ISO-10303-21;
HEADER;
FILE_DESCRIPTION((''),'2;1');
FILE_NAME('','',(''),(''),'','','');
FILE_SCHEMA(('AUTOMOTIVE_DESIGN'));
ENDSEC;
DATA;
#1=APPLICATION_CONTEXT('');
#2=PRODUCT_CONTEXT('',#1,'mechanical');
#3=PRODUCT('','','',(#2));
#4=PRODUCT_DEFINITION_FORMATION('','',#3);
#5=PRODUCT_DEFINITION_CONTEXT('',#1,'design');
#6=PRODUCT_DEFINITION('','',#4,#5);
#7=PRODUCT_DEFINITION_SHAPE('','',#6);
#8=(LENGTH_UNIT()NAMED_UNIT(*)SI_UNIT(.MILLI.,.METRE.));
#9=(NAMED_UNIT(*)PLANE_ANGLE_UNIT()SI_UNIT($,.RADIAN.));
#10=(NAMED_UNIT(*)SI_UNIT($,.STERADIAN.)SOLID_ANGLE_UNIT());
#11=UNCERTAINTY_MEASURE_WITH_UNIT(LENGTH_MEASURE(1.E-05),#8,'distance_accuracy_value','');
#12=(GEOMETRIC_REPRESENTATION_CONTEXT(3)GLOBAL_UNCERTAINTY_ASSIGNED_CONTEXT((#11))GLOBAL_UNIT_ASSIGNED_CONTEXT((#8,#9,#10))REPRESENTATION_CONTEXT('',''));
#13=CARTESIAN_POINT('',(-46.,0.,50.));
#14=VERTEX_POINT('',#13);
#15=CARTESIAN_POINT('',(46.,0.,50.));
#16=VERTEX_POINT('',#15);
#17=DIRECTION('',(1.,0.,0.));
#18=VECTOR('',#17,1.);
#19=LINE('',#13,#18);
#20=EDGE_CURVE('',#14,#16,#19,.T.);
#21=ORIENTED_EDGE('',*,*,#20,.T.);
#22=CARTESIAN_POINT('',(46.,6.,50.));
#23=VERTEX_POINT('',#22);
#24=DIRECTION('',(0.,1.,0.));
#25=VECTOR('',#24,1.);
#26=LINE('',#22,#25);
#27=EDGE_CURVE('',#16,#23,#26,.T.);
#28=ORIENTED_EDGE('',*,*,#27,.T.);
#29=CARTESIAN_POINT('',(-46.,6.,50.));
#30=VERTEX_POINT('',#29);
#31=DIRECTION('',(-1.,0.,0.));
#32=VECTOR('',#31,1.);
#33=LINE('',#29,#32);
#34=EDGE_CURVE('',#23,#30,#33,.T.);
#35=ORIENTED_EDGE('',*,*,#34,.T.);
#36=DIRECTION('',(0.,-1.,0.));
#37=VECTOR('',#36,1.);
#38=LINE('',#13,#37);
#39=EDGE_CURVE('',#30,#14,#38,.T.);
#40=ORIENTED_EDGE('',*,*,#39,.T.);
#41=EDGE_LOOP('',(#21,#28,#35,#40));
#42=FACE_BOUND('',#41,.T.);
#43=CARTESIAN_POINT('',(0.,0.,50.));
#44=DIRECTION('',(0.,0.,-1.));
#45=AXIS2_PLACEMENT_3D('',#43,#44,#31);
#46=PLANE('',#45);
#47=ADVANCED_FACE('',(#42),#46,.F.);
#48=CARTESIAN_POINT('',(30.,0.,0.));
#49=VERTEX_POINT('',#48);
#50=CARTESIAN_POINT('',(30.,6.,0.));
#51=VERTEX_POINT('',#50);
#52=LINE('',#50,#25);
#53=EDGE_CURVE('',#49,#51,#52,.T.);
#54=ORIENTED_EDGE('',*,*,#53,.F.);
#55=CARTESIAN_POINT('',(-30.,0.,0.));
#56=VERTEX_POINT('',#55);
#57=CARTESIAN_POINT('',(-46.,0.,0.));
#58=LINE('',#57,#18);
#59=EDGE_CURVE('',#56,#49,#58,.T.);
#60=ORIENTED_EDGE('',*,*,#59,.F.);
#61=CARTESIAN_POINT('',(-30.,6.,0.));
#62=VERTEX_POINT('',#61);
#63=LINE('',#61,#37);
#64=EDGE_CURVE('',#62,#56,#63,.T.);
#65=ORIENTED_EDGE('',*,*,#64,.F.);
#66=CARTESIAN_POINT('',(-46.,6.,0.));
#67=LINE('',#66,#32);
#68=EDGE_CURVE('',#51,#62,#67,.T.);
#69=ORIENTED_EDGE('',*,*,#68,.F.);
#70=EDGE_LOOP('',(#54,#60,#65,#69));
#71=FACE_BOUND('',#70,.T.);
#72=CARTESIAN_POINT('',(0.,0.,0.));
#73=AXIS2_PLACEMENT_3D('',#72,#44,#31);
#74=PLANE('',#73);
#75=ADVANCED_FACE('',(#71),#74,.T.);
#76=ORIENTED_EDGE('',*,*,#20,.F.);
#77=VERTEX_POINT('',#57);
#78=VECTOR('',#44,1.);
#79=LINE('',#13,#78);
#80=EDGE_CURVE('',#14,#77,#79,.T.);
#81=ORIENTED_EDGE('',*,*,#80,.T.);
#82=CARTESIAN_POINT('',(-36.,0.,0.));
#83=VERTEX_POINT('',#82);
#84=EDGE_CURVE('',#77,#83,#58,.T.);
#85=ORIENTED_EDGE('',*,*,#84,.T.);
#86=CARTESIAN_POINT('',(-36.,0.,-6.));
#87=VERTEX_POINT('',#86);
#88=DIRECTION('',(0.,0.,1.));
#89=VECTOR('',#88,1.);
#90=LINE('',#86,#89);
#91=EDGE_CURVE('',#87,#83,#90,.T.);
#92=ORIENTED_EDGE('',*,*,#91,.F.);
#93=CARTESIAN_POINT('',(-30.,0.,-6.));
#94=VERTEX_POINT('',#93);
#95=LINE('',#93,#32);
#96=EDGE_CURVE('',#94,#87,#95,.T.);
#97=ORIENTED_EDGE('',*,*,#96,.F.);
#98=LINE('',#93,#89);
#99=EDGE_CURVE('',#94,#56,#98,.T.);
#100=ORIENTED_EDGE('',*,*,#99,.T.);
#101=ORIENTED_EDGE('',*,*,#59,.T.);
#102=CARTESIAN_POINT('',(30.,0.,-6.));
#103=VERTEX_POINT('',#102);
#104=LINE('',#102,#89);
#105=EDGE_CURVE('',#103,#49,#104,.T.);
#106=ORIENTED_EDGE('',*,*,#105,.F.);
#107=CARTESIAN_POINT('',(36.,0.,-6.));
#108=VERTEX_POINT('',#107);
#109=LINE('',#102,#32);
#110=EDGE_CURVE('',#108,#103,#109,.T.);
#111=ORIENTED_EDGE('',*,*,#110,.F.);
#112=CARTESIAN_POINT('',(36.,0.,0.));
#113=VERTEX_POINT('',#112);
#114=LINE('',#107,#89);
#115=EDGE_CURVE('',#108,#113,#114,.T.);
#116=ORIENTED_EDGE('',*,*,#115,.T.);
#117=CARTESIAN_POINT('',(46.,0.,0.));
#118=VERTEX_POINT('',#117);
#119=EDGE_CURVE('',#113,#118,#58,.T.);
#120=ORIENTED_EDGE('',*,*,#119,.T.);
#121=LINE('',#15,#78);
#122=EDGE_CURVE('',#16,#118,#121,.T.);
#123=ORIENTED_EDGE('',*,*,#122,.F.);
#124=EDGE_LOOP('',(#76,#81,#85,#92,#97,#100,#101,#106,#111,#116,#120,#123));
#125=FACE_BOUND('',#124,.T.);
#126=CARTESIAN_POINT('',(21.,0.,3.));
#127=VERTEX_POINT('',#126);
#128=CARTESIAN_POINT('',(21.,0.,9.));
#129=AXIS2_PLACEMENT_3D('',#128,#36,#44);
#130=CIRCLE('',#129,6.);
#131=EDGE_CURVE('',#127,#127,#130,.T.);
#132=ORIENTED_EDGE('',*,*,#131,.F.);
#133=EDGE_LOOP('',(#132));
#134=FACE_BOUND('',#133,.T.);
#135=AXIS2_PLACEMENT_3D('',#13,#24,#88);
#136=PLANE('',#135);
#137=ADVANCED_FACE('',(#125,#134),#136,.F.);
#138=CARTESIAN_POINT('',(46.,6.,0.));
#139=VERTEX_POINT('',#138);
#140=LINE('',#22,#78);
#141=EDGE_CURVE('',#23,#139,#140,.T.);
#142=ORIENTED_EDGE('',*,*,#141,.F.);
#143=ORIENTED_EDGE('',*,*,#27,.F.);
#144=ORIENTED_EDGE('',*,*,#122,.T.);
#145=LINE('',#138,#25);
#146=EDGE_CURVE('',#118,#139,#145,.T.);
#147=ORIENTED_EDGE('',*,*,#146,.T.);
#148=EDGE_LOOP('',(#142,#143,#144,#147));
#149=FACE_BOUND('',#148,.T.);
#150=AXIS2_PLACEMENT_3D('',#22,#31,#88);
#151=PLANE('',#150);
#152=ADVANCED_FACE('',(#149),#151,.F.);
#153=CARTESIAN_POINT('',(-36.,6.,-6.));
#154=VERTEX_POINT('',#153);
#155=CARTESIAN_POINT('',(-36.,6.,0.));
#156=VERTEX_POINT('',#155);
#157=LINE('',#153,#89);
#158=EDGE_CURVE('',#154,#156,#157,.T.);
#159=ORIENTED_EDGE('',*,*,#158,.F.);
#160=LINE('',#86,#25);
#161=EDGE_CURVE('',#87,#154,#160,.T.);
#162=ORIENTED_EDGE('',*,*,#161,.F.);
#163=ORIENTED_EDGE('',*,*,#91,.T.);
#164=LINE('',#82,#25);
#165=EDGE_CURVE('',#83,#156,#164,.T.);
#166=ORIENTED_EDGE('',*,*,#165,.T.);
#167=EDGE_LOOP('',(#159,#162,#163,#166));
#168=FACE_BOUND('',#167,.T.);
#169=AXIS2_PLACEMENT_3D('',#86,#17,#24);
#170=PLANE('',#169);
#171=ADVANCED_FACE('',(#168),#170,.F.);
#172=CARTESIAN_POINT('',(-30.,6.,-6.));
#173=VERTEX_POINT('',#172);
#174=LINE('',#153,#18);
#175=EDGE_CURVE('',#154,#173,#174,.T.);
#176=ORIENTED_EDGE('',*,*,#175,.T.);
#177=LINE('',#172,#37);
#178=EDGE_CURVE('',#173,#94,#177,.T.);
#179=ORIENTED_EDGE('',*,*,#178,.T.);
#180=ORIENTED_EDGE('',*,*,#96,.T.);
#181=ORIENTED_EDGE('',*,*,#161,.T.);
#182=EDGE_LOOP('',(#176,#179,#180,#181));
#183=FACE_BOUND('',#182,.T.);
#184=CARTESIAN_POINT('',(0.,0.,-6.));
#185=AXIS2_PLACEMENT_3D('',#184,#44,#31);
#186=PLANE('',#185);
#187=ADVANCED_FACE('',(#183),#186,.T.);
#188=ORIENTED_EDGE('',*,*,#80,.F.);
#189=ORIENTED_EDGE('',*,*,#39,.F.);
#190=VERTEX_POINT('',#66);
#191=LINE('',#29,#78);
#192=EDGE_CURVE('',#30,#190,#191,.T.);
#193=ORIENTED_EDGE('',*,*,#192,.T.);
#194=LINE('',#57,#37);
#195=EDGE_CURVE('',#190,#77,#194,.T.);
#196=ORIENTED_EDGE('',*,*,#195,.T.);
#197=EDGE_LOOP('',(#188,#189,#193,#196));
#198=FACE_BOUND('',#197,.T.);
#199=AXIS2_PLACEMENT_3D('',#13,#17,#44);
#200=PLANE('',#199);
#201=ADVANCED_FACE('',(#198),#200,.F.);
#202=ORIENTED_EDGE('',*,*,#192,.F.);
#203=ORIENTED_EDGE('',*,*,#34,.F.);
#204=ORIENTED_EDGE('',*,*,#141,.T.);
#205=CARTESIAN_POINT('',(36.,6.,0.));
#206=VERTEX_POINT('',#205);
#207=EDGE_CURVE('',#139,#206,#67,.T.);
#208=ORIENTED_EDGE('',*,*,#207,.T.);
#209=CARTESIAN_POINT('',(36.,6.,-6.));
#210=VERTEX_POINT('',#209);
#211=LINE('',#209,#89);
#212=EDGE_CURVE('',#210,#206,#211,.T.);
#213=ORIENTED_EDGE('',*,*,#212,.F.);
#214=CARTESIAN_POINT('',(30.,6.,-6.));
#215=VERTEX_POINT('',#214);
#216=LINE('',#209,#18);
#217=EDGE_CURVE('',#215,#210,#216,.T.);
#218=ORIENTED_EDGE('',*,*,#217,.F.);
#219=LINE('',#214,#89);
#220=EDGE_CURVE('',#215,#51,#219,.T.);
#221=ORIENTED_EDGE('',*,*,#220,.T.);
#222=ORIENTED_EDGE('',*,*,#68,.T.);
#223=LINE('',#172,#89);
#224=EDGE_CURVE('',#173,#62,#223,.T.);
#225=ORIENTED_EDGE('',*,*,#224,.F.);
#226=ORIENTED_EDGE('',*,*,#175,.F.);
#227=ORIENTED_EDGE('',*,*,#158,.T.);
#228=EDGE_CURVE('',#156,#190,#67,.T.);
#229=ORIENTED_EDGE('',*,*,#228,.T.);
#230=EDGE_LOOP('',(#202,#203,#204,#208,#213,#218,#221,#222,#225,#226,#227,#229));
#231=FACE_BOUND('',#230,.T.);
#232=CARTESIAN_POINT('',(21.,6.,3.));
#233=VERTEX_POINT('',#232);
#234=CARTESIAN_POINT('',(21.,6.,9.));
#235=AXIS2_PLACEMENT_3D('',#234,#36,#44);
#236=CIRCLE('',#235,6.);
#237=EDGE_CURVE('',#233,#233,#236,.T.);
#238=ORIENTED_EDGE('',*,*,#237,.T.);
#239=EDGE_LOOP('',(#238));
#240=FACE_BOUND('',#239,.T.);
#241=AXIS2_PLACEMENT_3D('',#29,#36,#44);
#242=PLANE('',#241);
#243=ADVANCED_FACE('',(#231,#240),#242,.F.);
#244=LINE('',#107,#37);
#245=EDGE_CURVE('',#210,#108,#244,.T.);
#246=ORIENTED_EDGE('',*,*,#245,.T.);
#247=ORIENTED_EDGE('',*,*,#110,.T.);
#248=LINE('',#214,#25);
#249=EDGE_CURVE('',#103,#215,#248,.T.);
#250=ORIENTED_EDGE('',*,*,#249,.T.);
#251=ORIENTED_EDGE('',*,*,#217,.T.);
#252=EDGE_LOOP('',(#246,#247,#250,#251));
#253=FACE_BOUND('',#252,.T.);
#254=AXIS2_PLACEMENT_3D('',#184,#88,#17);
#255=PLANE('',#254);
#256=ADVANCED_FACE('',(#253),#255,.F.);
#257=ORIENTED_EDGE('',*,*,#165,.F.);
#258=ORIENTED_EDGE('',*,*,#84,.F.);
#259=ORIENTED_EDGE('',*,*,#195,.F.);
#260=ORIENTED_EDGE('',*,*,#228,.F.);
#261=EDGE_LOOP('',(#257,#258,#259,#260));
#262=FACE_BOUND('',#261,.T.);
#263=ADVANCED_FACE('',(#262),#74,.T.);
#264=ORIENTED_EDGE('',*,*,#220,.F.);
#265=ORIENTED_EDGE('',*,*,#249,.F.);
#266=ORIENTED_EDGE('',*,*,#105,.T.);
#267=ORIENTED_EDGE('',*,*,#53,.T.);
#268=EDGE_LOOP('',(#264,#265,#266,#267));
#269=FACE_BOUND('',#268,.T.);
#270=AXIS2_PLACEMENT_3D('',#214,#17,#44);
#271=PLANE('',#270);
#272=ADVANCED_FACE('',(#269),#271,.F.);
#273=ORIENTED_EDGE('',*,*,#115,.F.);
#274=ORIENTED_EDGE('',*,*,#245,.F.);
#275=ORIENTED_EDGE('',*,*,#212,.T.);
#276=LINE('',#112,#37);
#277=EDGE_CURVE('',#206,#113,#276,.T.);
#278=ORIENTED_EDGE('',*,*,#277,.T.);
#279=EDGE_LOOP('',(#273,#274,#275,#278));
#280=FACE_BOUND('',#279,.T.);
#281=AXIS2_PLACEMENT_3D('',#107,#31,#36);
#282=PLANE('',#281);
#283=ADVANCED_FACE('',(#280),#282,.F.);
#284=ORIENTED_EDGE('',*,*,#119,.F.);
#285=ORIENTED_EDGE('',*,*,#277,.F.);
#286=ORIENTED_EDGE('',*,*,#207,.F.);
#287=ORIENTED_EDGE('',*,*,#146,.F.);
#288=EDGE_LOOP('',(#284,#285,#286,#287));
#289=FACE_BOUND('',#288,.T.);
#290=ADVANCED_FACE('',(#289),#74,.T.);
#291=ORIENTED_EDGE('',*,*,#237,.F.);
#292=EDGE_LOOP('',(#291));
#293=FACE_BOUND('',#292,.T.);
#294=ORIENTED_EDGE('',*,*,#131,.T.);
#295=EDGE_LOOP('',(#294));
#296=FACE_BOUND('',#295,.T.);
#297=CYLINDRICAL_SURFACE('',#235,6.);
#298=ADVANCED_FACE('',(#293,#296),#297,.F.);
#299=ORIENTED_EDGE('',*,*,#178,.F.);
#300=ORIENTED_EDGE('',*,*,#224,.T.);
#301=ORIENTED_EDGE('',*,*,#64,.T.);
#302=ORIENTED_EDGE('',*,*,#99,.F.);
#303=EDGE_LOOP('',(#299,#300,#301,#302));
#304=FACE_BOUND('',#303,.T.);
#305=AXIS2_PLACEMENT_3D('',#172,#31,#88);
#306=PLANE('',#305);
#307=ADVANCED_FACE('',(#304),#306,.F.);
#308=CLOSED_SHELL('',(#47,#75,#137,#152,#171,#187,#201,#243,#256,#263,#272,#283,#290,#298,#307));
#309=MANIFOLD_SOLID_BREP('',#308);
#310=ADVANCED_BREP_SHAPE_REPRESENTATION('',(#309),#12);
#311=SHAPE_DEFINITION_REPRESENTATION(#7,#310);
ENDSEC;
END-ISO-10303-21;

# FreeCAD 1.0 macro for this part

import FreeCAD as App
import Part
import Sketcher

V = App.Vector


def add_polygon(sketch, points):
    """Adds a closed chain of lines whose ends are joined by coincident constraints."""
    first, n = sketch.GeometryCount, len(points)
    for a, b in zip(points, points[1:] + points[:1]):
        sketch.addGeometry(Part.LineSegment(App.Vector(*a, 0), App.Vector(*b, 0)), False)
    for i in range(n):
        sketch.addConstraint(Sketcher.Constraint("Coincident", first + i, 2, first + (i + 1) % n, 1))

doc = App.newDocument("Part")
body = doc.addObject("PartDesign::Body", "Body")

sketch1 = doc.addObject("Sketcher::SketchObject", "Sketch")
body.addObject(sketch1)
sketch1.AttachmentSupport = (doc.XY_Plane, [""])
sketch1.MapMode = "FlatFace"
add_polygon(sketch1, [(-46, 6), (-46, 0), (46, 0), (46, 6)])
sketch1.addConstraint([
    Sketcher.Constraint("Vertical", 0),
    Sketcher.Constraint("Horizontal", 1),
    Sketcher.Constraint("Vertical", 2),
    Sketcher.Constraint("Horizontal", 3),
    Sketcher.Constraint("Symmetric", 0, 2, 1, 2, -1, 1),
    Sketcher.Constraint("DistanceX", 1, 1, 1, 2, 92.0),
    Sketcher.Constraint("DistanceY", 0, 2, 0, 1, 6.0),
])
pad1 = doc.addObject("PartDesign::Pad", "Pad")
body.addObject(pad1)
pad1.Profile = sketch1
pad1.Length = 50

sketch2 = doc.addObject("Sketcher::SketchObject", "Sketch001")
body.addObject(sketch2)
sketch2.AttachmentSupport = (doc.XY_Plane, [""])
sketch2.MapMode = "FlatFace"
add_polygon(sketch2, [(36, 6), (36, 0), (30, 0), (30, 6)])
add_polygon(sketch2, [(-30, 6), (-30, 0), (-36, 0), (-36, 6)])
sketch2.addConstraint([
    Sketcher.Constraint("Vertical", 0),
    Sketcher.Constraint("Horizontal", 1),
    Sketcher.Constraint("Vertical", 2),
    Sketcher.Constraint("Horizontal", 3),
    Sketcher.Constraint("Vertical", 4),
    Sketcher.Constraint("Horizontal", 5),
    Sketcher.Constraint("Vertical", 6),
    Sketcher.Constraint("Horizontal", 7),
    Sketcher.Constraint("Symmetric", 1, 2, 4, 2, -1, 1),
    Sketcher.Constraint("Symmetric", 0, 2, 5, 2, -2),
    Sketcher.Constraint("Horizontal", 3, 2, 6, 2),
    Sketcher.Constraint("Equal", 7, 0),
    Sketcher.Constraint("DistanceX", 1, 2, 1, 1, 6.0),
    Sketcher.Constraint("DistanceX", -1, 1, 0, 2, 36.0),
])
pad2 = doc.addObject("PartDesign::Pad", "Pad001")
body.addObject(pad2)
pad2.Profile = sketch2
pad2.Length = 6
pad2.Reversed = True

sketch3 = doc.addObject("Sketcher::SketchObject", "Sketch002")
body.addObject(sketch3)
sketch3.AttachmentSupport = (doc.XZ_Plane, [""])
sketch3.MapMode = "FlatFace"
sketch3.addGeometry(Part.Circle(V(21, 9, 0), V(0, 0, 1), 6), False)
sketch3.addConstraint([
    Sketcher.Constraint("Diameter", 0, 12.0),
    Sketcher.Constraint("DistanceX", -1, 1, 0, 3, 21.0),
    Sketcher.Constraint("DistanceY", -1, 1, 0, 3, 9.0),
])
pocket1 = doc.addObject("PartDesign::Pocket", "Pocket")
body.addObject(pocket1)
pocket1.Profile = sketch3
pocket1.Length = 6

doc.recompute()
